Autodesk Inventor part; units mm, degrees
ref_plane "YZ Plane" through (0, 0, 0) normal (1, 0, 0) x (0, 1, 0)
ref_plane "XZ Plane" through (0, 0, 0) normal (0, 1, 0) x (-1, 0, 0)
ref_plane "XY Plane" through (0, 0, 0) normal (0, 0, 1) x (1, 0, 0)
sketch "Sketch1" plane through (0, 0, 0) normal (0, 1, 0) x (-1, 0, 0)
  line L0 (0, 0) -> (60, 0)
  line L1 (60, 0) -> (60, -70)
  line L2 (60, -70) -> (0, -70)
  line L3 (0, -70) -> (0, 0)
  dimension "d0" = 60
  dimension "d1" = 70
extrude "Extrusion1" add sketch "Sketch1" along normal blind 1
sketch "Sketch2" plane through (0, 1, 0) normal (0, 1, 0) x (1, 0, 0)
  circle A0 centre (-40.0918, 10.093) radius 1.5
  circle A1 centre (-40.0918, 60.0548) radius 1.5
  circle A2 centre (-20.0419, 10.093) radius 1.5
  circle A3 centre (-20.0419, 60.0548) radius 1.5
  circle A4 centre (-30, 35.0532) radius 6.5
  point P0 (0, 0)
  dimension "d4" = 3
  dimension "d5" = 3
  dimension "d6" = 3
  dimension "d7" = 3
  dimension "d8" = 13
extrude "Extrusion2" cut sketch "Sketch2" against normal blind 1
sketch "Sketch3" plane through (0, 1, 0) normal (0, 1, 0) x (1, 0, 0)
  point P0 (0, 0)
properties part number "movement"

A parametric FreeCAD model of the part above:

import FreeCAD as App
import Part
import Sketcher
from FreeCAD import Vector
Q = App.Units.Quantity


def add_polygon(sketch, points):
    """Adds a closed chain of lines whose ends are joined by coincident constraints."""
    first, n = sketch.GeometryCount, len(points)
    for a, b in zip(points, points[1:] + points[:1]):
        sketch.addGeometry(Part.LineSegment(App.Vector(*a, 0), App.Vector(*b, 0)), False)
    for i in range(n):
        sketch.addConstraint(Sketcher.Constraint("Coincident", first + i, 2, first + (i + 1) % n, 1))

doc = App.newDocument("Part")
body = doc.addObject("PartDesign::Body", "Body")

# Sketch on XZ plane
sketch1 = body.newObject("Sketcher::SketchObject", "Sketch")
sketch1.AttachmentSupport = (doc.getObject("XZ_Plane"), [""])
sketch1.MapMode = "FlatFace"
add_polygon(sketch1, [(-60, 0), (0, 0), (0, -70), (-60, -70)])  # lines 0-3
sketch1.addConstraint(Sketcher.Constraint("Horizontal", 0))
sketch1.addConstraint(Sketcher.Constraint("Vertical", 1))
sketch1.addConstraint(Sketcher.Constraint("Horizontal", 2))
sketch1.addConstraint(Sketcher.Constraint("Vertical", 3))
sketch1.addConstraint(Sketcher.Constraint("Coincident", 0, 2, -1, 1))
sketch1.addConstraint(Sketcher.Constraint("DistanceX", 0, 1, 0, 2, Q("60 mm")))
sketch1.addConstraint(Sketcher.Constraint("DistanceY", 1, 2, 1, 1, Q("70 mm")))
pad1 = body.newObject("PartDesign::Pad", "Pad")
pad1.Profile = sketch1
pad1.Length = 1
pad1.Reversed = True

# Sketch on XZ plane
sketch2 = body.newObject("Sketcher::SketchObject", "Sketch001")
sketch2.AttachmentSupport = (doc.getObject("XZ_Plane"), [""])
sketch2.MapMode = "FlatFace"
sketch2.AttachmentOffset = App.Placement(Vector(0, 0, -1), App.Rotation())
sketch2.addGeometry(Part.Circle(Vector(-40.0918, -10.093, 0), Vector(0, 0, 1), 1.5), False)
sketch2.addGeometry(Part.Circle(Vector(-40.0918, -60.0548, 0), Vector(0, 0, 1), 1.5), False)
sketch2.addGeometry(Part.Circle(Vector(-20.0419, -10.093, 0), Vector(0, 0, 1), 1.5), False)
sketch2.addGeometry(Part.Circle(Vector(-20.0419, -60.0548, 0), Vector(0, 0, 1), 1.5), False)
sketch2.addGeometry(Part.Circle(Vector(-30, -35.0532, 0), Vector(0, 0, 1), 6.5), False)
sketch2.addConstraint(Sketcher.Constraint("Equal", 0, 1))
sketch2.addConstraint(Sketcher.Constraint("Equal", 1, 2))
sketch2.addConstraint(Sketcher.Constraint("Equal", 2, 3))
sketch2.addConstraint(Sketcher.Constraint("Horizontal", 0, 3, 2, 3))
sketch2.addConstraint(Sketcher.Constraint("Horizontal", 1, 3, 3, 3))
sketch2.addConstraint(Sketcher.Constraint("Vertical", 0, 3, 1, 3))
sketch2.addConstraint(Sketcher.Constraint("Vertical", 2, 3, 3, 3))
sketch2.addConstraint(Sketcher.Constraint("Diameter", 0, Q("3 mm")))
sketch2.addConstraint(Sketcher.Constraint("Diameter", 4, Q("13 mm")))
sketch2.addConstraint(Sketcher.Constraint("DistanceX", 4, 3, -1, 1, Q("30 mm")))
sketch2.addConstraint(Sketcher.Constraint("DistanceX", 0, 3, 2, 3, Q("20.05 mm")))
sketch2.addConstraint(Sketcher.Constraint("DistanceY", 0, 3, -1, 1, Q("10.093 mm")))
sketch2.addConstraint(Sketcher.Constraint("DistanceX", 2, 3, -1, 1, Q("20.042 mm")))
sketch2.addConstraint(Sketcher.Constraint("DistanceY", 1, 3, -1, 1, Q("60.0548 mm")))
sketch2.addConstraint(Sketcher.Constraint("DistanceY", 4, 3, -1, 1, Q("35.0532 mm")))
pocket1 = body.newObject("PartDesign::Pocket", "Pocket")
pocket1.Profile = sketch2
pocket1.Length = 1
pocket1.Reversed = True

doc.recompute()
